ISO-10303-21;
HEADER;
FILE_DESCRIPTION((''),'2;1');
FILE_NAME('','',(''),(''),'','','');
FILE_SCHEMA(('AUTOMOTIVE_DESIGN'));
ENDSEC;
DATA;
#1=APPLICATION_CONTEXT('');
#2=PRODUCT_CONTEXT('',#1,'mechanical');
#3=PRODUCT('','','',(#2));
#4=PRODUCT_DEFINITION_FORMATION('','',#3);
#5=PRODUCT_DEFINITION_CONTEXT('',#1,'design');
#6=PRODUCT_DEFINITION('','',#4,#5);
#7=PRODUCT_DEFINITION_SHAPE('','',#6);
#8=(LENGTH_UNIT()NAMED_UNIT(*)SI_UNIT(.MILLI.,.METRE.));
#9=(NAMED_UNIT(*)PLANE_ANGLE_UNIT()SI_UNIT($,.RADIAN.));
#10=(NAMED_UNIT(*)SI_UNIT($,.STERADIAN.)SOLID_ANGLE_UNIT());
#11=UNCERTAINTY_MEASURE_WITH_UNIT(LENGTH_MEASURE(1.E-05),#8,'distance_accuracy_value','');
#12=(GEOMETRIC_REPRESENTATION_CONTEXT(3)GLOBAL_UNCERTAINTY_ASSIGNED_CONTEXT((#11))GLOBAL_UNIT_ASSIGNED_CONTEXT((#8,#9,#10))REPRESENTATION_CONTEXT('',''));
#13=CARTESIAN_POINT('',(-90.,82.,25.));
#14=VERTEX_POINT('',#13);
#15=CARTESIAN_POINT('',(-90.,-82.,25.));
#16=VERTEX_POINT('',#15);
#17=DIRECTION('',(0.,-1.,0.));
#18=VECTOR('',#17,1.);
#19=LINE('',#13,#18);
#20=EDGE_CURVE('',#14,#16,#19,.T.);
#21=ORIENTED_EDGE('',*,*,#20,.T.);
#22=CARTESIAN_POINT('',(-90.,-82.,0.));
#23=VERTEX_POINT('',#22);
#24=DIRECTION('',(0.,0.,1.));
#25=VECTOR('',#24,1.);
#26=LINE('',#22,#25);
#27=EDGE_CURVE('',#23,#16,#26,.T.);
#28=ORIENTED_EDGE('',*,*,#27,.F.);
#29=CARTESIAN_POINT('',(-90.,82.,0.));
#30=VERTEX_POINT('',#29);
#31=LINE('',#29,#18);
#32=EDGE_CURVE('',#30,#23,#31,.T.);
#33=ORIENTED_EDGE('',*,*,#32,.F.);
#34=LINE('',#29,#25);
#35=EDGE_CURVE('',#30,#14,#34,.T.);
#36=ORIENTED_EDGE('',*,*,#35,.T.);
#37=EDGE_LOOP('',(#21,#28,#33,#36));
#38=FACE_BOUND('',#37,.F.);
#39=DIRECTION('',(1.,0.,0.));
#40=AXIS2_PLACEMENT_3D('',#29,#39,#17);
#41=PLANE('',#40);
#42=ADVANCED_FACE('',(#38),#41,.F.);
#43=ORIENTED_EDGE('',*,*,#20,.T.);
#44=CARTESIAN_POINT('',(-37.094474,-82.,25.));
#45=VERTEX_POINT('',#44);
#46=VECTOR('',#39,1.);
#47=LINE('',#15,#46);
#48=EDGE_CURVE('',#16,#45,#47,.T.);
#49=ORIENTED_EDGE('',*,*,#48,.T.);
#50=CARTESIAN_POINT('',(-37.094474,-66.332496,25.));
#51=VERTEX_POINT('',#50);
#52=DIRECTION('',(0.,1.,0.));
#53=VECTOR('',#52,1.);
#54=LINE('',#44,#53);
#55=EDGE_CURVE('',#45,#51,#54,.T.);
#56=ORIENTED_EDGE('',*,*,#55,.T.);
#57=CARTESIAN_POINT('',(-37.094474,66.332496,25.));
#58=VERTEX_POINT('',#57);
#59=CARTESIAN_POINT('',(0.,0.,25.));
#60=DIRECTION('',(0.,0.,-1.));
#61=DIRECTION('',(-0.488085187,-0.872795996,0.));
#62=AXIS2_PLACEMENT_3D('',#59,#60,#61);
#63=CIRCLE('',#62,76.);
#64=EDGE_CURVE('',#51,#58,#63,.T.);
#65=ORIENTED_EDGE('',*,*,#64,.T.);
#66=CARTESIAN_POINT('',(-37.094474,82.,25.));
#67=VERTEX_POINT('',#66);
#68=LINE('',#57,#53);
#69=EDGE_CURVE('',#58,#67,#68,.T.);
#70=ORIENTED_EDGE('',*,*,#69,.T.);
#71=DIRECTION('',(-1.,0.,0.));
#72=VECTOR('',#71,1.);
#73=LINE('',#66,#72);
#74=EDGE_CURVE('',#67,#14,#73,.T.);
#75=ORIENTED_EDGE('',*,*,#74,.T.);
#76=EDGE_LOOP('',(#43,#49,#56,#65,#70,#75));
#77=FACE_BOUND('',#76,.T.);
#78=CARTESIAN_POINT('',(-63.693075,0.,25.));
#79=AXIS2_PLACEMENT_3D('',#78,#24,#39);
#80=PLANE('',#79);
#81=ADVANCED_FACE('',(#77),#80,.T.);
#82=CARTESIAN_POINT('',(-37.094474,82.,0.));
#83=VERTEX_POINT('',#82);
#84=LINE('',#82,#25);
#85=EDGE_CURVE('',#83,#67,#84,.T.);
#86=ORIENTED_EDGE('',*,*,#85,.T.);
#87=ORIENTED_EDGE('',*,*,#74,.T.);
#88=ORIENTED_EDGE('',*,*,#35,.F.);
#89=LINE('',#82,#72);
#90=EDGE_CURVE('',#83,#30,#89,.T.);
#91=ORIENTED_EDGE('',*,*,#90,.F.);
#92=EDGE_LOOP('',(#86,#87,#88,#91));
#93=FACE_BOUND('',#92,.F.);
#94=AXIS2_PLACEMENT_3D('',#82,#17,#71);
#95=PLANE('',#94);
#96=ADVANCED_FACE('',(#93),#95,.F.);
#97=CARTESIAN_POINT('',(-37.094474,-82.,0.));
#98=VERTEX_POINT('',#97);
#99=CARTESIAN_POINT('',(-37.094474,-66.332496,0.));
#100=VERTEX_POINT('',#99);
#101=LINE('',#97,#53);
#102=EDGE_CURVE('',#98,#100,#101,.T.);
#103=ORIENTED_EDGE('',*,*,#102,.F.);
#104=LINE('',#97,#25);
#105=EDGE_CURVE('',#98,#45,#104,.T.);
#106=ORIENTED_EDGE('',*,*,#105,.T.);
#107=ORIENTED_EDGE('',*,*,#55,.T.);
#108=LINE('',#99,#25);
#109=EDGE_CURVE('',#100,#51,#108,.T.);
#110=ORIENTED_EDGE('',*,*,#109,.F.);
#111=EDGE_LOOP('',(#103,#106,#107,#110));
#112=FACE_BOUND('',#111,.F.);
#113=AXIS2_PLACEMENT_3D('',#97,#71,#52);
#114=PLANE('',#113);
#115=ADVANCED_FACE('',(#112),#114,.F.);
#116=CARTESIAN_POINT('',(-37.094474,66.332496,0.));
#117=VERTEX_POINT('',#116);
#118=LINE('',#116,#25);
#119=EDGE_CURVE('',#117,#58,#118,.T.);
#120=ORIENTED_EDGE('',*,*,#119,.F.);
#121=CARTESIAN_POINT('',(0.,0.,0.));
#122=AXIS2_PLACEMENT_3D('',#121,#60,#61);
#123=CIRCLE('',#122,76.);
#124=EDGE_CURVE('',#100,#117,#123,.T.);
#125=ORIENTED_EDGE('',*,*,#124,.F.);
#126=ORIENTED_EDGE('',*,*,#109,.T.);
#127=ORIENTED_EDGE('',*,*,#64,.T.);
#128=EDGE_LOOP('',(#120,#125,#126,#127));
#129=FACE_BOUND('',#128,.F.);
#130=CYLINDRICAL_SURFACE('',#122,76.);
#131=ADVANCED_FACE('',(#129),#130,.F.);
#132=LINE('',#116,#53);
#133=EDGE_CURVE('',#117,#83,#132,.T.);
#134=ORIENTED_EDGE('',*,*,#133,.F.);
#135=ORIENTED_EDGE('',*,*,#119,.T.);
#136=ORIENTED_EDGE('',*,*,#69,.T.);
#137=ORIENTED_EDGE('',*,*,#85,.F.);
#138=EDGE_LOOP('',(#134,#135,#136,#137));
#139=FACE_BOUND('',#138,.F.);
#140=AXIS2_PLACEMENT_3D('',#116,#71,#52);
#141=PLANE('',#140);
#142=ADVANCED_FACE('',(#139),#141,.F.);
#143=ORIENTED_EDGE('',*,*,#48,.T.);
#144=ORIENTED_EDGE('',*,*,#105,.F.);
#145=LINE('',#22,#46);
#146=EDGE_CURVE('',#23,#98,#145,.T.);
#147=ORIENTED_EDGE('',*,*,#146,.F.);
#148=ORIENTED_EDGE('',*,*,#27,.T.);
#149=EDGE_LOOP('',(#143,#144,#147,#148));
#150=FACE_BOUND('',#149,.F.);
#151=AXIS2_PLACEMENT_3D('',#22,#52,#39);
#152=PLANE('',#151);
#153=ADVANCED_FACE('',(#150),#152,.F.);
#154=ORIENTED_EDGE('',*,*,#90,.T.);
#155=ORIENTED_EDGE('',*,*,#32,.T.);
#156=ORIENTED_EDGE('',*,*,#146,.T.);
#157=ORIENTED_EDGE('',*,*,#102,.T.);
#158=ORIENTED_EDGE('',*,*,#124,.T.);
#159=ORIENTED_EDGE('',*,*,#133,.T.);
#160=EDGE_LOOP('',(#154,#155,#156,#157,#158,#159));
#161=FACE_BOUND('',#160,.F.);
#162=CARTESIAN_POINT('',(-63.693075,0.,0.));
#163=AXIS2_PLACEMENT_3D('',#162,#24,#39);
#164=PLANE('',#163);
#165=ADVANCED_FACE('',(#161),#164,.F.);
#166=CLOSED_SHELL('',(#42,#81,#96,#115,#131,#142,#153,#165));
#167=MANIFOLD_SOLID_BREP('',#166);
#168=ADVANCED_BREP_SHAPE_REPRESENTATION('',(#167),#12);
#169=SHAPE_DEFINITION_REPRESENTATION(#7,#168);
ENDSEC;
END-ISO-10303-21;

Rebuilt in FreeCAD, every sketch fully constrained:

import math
import FreeCAD as App
import Part
import Sketcher

doc = App.newDocument("Part")
params = doc.addObject("Spreadsheet::Sheet", "Params")
for row, (alias, value) in enumerate([
    ("sketch1_radius", "76 mm"),
    ("sketch1_height", "164 mm"),
    ("pad1_length", "25 mm"),
], start=1):
    params.set(f"A{row}", alias)
    params.set(f"B{row}", "=" + value)
    params.setAlias(f"B{row}", alias)

body = doc.addObject("PartDesign::Body", "Body")

sketch1 = body.newObject("Sketcher::SketchObject", "Sketch")
sketch1.AttachmentSupport = (doc.getObject("XY_Plane"), [""])
sketch1.MapMode = "FlatFace"
sketch1.addGeometry([
    Part.ArcOfCircle(Part.Circle(App.Vector(0, 0, 0), App.Vector(0, 0, 1), 76), math.radians(119.214804), math.radians(240.785196)),
    Part.LineSegment(App.Vector(-37.094474, 66.332496, 0), App.Vector(-37.094474, 82, 0)),
    Part.LineSegment(App.Vector(-37.094474, 82, 0), App.Vector(-90, 82, 0)),
    Part.LineSegment(App.Vector(-90, 82, 0), App.Vector(-90, -82, 0)),
    Part.LineSegment(App.Vector(-90, -82, 0), App.Vector(-37.094474, -82, 0)),
    Part.LineSegment(App.Vector(-37.094474, -82, 0), App.Vector(-37.094474, -66.332496, 0)),
], False)
sketch1.addConstraint([
    Sketcher.Constraint("Coincident", 0, 1, 1, 1),
    Sketcher.Constraint("Coincident", 1, 2, 2, 1),
    Sketcher.Constraint("Coincident", 2, 2, 3, 1),
    Sketcher.Constraint("Coincident", 3, 2, 4, 1),
    Sketcher.Constraint("Coincident", 4, 2, 5, 1),
    Sketcher.Constraint("Coincident", 5, 2, 0, 2),
    Sketcher.Constraint("Vertical", 1),
    Sketcher.Constraint("Horizontal", 2),
    Sketcher.Constraint("Vertical", 3),
    Sketcher.Constraint("Horizontal", 4),
    Sketcher.Constraint("Vertical", 5),
    Sketcher.Constraint("Coincident", 0, 3, -1, 1),
    Sketcher.Constraint("Symmetric", 1, 2, 4, 2, -1),
    Sketcher.Constraint("Radius", 0, 76.0),
    Sketcher.Constraint("DistanceY", 3, 2, 3, 1, 164.0),
    Sketcher.Constraint("DistanceX", 2, 2, -1, 1, 90.0),
    Sketcher.Constraint("DistanceX", 2, 2, 2, 1, 52.905526),
])
sketch1.setExpression("Constraints[13]", "Params.sketch1_radius")
sketch1.setExpression("Constraints[14]", "Params.sketch1_height")
pad1 = body.newObject("PartDesign::Pad", "Pad")
pad1.Profile = sketch1
pad1.setExpression("Length", "Params.pad1_length")

doc.recompute()
